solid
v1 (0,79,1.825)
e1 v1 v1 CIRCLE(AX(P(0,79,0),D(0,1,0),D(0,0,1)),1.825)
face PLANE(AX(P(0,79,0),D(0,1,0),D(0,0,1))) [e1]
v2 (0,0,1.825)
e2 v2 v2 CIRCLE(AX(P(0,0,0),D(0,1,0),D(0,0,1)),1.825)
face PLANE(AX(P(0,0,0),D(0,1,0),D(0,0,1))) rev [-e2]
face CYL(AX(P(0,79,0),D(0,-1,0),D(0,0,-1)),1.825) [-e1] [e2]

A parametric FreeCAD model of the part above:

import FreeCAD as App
import Part
import Sketcher

V = App.Vector
Q = App.Units.Quantity

doc = App.newDocument("Part")
body = doc.addObject("PartDesign::Body", "Body")

# Sketch on XZ plane
sketch1 = body.newObject("Sketcher::SketchObject", "Sketch")
sketch1.AttachmentSupport = (doc.getObject("XZ_Plane"), [""])
sketch1.MapMode = "FlatFace"
sketch1.addGeometry(Part.Circle(V(0, 0, 0), V(0, 0, 1), 1.8), False)
sketch1.addConstraint([
    Sketcher.Constraint("Coincident", 0, 3, -1, 1),
    Sketcher.Constraint("Diameter", 0, Q("3.65 mm")),
])
pad1 = body.newObject("PartDesign::Pad", "Pad")
pad1.Profile = sketch1
pad1.Length = 79
pad1.Reversed = True

doc.recompute()
